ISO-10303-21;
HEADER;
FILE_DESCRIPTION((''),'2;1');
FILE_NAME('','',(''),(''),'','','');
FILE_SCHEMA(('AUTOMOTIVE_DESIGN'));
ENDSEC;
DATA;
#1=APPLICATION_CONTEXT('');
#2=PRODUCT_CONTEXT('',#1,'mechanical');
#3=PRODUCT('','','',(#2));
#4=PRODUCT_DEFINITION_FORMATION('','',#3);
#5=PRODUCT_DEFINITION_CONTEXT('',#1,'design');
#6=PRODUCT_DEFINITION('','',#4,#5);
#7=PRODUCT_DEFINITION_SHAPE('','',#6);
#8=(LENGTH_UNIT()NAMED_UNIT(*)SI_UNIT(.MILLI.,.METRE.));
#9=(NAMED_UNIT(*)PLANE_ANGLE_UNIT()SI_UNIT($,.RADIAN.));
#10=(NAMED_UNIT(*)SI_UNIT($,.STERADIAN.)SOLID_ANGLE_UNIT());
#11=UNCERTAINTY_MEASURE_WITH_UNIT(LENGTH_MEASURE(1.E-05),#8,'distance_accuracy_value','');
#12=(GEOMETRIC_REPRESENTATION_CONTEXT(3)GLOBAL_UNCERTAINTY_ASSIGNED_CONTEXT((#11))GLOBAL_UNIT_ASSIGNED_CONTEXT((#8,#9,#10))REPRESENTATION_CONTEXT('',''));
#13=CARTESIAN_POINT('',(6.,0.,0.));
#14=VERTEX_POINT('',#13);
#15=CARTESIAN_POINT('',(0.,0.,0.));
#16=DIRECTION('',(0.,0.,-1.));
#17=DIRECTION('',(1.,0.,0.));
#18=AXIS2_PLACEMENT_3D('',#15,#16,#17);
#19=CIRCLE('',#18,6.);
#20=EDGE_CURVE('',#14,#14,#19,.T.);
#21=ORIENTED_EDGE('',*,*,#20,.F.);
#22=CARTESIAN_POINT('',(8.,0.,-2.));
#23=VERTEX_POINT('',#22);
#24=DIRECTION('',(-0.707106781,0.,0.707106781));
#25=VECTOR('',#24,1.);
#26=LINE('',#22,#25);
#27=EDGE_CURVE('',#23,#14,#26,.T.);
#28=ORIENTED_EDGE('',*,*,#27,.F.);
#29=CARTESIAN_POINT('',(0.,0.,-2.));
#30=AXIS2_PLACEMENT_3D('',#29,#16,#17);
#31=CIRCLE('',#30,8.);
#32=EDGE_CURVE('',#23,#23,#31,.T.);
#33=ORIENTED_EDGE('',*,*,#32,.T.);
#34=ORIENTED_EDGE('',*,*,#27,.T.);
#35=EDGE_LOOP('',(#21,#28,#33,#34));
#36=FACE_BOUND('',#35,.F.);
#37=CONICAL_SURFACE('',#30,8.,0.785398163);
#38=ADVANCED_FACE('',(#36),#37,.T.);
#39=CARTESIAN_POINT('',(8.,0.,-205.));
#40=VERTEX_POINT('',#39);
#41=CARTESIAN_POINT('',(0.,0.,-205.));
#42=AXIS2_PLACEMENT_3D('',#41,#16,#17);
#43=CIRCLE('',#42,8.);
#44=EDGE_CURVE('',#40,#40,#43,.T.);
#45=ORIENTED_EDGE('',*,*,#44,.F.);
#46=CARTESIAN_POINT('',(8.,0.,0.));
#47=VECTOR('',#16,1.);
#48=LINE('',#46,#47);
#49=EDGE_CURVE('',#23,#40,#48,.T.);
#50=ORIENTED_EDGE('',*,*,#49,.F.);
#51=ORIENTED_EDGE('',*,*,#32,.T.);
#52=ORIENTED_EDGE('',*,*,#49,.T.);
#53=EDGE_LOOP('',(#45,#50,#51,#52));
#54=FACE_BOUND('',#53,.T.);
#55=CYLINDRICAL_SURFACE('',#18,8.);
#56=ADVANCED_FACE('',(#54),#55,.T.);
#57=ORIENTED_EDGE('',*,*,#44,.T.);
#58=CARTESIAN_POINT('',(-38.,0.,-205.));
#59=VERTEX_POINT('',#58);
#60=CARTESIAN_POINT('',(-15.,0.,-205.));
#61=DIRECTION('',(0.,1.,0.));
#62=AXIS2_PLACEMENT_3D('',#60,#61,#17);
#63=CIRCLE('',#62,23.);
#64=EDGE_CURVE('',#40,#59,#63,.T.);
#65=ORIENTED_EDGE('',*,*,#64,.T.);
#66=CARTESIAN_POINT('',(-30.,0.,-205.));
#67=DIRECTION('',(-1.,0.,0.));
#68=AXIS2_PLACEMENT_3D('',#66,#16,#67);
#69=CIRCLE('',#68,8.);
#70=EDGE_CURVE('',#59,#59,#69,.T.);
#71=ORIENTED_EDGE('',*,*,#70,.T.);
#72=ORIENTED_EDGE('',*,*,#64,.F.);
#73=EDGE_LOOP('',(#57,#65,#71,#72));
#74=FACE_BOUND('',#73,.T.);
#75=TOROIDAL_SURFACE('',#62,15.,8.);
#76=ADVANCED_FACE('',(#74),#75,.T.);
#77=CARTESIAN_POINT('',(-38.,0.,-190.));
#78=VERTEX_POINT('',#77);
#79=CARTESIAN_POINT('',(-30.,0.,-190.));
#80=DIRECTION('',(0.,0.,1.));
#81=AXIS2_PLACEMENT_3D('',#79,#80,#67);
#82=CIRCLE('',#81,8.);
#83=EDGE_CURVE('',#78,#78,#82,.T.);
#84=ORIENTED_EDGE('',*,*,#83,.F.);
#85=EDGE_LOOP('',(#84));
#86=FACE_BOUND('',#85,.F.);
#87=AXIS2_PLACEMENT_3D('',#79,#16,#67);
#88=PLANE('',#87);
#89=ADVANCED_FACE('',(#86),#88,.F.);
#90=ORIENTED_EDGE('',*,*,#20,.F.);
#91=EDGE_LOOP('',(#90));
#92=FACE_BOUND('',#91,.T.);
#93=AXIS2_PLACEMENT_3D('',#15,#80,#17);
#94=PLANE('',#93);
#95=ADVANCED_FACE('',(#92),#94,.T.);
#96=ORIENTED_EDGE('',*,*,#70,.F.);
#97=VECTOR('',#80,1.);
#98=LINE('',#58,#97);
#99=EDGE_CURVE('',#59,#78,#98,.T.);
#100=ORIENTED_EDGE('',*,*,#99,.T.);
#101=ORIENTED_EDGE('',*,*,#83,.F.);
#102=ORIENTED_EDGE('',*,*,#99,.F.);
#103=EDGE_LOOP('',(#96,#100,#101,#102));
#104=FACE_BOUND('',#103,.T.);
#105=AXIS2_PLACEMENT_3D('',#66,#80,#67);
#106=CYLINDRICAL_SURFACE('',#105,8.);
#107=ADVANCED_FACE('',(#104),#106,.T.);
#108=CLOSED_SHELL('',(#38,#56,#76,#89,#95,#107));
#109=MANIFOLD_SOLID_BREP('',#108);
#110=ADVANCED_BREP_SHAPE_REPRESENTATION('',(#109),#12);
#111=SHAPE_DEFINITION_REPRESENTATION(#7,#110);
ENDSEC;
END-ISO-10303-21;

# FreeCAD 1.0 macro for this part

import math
import FreeCAD as App
import Part
import Sketcher
from FreeCAD import Vector
Q = App.Units.Quantity


def edges_at(feature, points):
    """Names of the edges that pass closest to the given points."""
    edges = feature.Shape.Edges
    near = lambda p: min(range(len(edges)), key=lambda i: edges[i].distToShape(Part.Vertex(*p))[0])
    return sorted({f"Edge{near(p) + 1}" for p in points})

doc = App.newDocument("Part")
body = doc.addObject("PartDesign::Body", "Body")

# Sketch on XY plane
sketch1 = body.newObject("Sketcher::SketchObject", "Sketch")
sketch1.AttachmentSupport = (doc.getObject("XY_Plane"), [""])
sketch1.MapMode = "FlatFace"
sketch1.addGeometry(Part.Circle(Vector(0, 0, 0), Vector(0, 0, 1), 8), False)
sketch1.addConstraint(Sketcher.Constraint("Coincident", 0, 3, -1, 1))
sketch1.addConstraint(Sketcher.Constraint("Diameter", 0, Q("16 mm")))

# Sketch on XZ plane
sketch2 = body.newObject("Sketcher::SketchObject", "Sketch001")
sketch2.AttachmentSupport = (doc.getObject("XZ_Plane"), [""])
sketch2.MapMode = "FlatFace"
sketch2.addGeometry(Part.LineSegment(Vector(0, 0, 0), Vector(0, -205, 0)), False)
sketch2.addGeometry(Part.ArcOfCircle(Part.Circle(Vector(-15, -205, 0), Vector(0, 0, 1), 15), math.radians(180), math.radians(360)), False)
sketch2.addGeometry(Part.LineSegment(Vector(-30, -205, 0), Vector(-30, -190, 0)), False)
sketch2.addConstraint(Sketcher.Constraint("Tangent", 0, 2, 1, 2))
sketch2.addConstraint(Sketcher.Constraint("Tangent", 1, 1, 2, 1))
sketch2.addConstraint(Sketcher.Constraint("Vertical", 0))
sketch2.addConstraint(Sketcher.Constraint("Vertical", 2))
sketch2.addConstraint(Sketcher.Constraint("Coincident", 0, 1, -1, 1))
sketch2.addConstraint(Sketcher.Constraint("Radius", 1, Q("15 mm")))
sketch2.addConstraint(Sketcher.Constraint("DistanceY", 0, 2, 0, 1, Q("205 mm")))
sketch2.addConstraint(Sketcher.Constraint("DistanceY", 2, 1, 2, 2, Q("15 mm")))
doc.recompute()

additivepipe = body.newObject("PartDesign::AdditivePipe", "AdditivePipe")
additivepipe.Profile = sketch1
additivepipe.Spine = (sketch2, ["Edge1", "Edge2", "Edge3"])
doc.recompute()

chamfer = body.newObject("PartDesign::Chamfer", "Chamfer")
chamfer.Base = (additivepipe, edges_at(additivepipe, [(-8, 0, 0)]))
chamfer.Size = 2

doc.recompute()
